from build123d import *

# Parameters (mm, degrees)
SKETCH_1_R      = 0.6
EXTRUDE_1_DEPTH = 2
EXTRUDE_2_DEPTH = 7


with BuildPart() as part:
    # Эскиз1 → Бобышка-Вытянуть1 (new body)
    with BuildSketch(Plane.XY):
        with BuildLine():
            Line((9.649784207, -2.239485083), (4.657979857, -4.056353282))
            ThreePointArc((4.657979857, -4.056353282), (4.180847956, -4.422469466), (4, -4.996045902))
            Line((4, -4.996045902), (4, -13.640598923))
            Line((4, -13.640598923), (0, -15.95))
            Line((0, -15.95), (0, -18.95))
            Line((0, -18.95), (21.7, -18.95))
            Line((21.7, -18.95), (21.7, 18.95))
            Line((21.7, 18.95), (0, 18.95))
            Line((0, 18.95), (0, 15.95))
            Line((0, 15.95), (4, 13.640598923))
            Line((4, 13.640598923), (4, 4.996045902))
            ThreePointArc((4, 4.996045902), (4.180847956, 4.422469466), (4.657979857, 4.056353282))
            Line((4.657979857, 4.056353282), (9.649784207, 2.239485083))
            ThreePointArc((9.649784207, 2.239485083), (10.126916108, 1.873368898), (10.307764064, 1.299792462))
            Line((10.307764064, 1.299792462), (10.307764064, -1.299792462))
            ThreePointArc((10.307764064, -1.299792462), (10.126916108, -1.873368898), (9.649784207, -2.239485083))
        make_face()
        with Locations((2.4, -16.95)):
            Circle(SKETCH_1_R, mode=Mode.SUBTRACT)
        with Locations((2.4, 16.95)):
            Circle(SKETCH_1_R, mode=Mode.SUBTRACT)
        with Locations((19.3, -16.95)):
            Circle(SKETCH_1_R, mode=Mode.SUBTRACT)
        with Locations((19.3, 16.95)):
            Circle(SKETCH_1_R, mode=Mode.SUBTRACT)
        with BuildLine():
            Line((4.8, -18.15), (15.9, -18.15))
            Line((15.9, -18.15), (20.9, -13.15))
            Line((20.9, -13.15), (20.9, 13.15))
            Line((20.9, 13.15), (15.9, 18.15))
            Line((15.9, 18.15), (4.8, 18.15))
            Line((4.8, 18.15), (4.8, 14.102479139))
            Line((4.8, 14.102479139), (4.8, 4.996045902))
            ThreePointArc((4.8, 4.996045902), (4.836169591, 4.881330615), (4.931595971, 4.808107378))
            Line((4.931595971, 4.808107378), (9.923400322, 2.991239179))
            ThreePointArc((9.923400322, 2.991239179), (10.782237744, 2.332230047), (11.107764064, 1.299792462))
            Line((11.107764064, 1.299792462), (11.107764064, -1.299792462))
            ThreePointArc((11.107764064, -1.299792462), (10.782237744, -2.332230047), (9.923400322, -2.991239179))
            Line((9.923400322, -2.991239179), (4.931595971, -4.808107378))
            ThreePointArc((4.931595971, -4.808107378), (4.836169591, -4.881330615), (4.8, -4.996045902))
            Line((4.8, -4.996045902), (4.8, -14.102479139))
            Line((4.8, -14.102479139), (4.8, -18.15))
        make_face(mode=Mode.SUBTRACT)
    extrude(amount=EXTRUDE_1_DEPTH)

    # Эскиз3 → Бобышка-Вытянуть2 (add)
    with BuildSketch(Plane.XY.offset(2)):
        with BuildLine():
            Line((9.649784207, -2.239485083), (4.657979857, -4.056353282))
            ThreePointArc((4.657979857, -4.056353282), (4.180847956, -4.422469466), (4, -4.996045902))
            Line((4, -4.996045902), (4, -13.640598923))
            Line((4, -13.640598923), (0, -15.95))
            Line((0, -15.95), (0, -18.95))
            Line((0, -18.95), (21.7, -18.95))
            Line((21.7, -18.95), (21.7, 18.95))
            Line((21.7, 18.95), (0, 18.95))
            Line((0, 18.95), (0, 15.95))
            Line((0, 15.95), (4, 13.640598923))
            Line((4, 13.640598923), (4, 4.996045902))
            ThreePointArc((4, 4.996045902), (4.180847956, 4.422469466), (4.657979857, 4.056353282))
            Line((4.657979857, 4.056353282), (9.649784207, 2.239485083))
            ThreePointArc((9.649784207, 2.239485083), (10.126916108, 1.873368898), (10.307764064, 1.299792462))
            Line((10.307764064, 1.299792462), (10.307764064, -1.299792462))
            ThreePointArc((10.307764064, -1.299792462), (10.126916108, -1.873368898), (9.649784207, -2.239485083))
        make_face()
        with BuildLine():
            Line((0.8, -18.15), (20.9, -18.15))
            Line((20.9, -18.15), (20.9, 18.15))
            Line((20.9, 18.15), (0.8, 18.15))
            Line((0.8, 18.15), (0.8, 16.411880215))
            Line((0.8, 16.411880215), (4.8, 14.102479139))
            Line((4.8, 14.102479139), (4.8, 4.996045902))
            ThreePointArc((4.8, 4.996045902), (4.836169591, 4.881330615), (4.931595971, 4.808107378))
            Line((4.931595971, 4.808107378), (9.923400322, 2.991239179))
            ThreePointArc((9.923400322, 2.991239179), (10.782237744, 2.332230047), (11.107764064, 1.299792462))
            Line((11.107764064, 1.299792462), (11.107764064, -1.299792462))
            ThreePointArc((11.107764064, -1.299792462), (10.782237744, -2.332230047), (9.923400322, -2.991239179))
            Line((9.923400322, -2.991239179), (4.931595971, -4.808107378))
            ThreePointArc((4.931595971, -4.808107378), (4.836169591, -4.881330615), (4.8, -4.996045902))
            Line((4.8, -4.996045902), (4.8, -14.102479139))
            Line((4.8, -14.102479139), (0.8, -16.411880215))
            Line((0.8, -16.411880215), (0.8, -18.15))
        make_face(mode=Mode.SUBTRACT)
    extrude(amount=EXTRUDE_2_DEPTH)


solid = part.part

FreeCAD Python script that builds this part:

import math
import FreeCAD as App
import Part
import Sketcher
from FreeCAD import Vector
Q = App.Units.Quantity

doc = App.newDocument("Part")
body = doc.addObject("PartDesign::Body", "Body")

# Sketch on XY plane
sketch1 = body.newObject("Sketcher::SketchObject", "Sketch")
sketch1.AttachmentSupport = (doc.getObject("XY_Plane"), [""])
sketch1.MapMode = "FlatFace"
sketch1.addGeometry([
    Part.LineSegment(Vector(9.65, -2.24, 0), Vector(4.66, -4.06, 0)),  # 0
    Part.ArcOfCircle(Part.Circle(Vector(5, -5, 0), Vector(0, 0, 1), 1), math.radians(110), math.radians(180)),  # 1
    Part.LineSegment(Vector(4, -5, 0), Vector(4, -13.64, 0)),  # 2
    Part.LineSegment(Vector(4, -13.64, 0), Vector(0, -15.95, 0)),  # 3
    Part.LineSegment(Vector(0, -15.95, 0), Vector(0, -18.95, 0)),  # 4
    Part.LineSegment(Vector(0, -18.95, 0), Vector(21.7, -18.95, 0)),  # 5
    Part.LineSegment(Vector(21.7, -18.95, 0), Vector(21.7, 18.95, 0)),  # 6
    Part.LineSegment(Vector(21.7, 18.95, 0), Vector(0, 18.95, 0)),  # 7
    Part.LineSegment(Vector(0, 18.95, 0), Vector(0, 15.95, 0)),  # 8
    Part.LineSegment(Vector(0, 15.95, 0), Vector(4, 13.64, 0)),  # 9
    Part.LineSegment(Vector(4, 13.64, 0), Vector(4, 5, 0)),  # 10
    Part.ArcOfCircle(Part.Circle(Vector(5, 5, 0), Vector(0, 0, 1), 1), math.radians(-180), math.radians(-110)),  # 11
    Part.LineSegment(Vector(4.66, 4.06, 0), Vector(9.65, 2.24, 0)),  # 12
    Part.ArcOfCircle(Part.Circle(Vector(9.31, 1.3, 0), Vector(0, 0, 1), 1), math.radians(0), math.radians(70)),  # 13
    Part.LineSegment(Vector(10.31, 1.3, 0), Vector(10.31, -1.3, 0)),  # 14
    Part.ArcOfCircle(Part.Circle(Vector(9.31, -1.3, 0), Vector(0, 0, 1), 1), math.radians(-70), math.radians(0)),  # 15
    Part.Circle(Vector(2.4, -16.95, 0), Vector(0, 0, 1), 0.6),  # 16
    Part.Circle(Vector(19.3, -16.95, 0), Vector(0, 0, 1), 0.6),  # 17
    Part.Circle(Vector(2.4, 16.95, 0), Vector(0, 0, 1), 0.6),  # 18
    Part.LineSegment(Vector(15.9, -18.15, 0), Vector(4.8, -18.15, 0)),  # 19
    Part.LineSegment(Vector(4.8, -18.15, 0), Vector(4.8, -5, 0)),  # 20
    Part.ArcOfCircle(Part.Circle(Vector(5, -5, 0), Vector(0, 0, 1), 0.2), math.radians(110), math.radians(180)),  # 21
    Part.LineSegment(Vector(4.93, -4.81, 0), Vector(9.92, -2.99, 0)),  # 22
    Part.ArcOfCircle(Part.Circle(Vector(9.31, -1.3, 0), Vector(0, 0, 1), 1.8), math.radians(-70), math.radians(0)),  # 23
    Part.LineSegment(Vector(11.11, -1.3, 0), Vector(11.11, 1.3, 0)),  # 24
    Part.ArcOfCircle(Part.Circle(Vector(9.31, 1.3, 0), Vector(0, 0, 1), 1.8), math.radians(0), math.radians(70)),  # 25
    Part.LineSegment(Vector(9.92, 2.99, 0), Vector(4.93, 4.81, 0)),  # 26
    Part.ArcOfCircle(Part.Circle(Vector(5, 5, 0), Vector(0, 0, 1), 0.2), math.radians(180), math.radians(250)),  # 27
    Part.LineSegment(Vector(4.8, 5, 0), Vector(4.8, 18.15, 0)),  # 28
    Part.LineSegment(Vector(4.8, 18.15, 0), Vector(15.9, 18.15, 0)),  # 29
    Part.LineSegment(Vector(15.9, 18.15, 0), Vector(20.9, 13.15, 0)),  # 30
    Part.LineSegment(Vector(20.9, 13.15, 0), Vector(20.9, -13.15, 0)),  # 31
    Part.LineSegment(Vector(20.9, -13.15, 0), Vector(15.9, -18.15, 0)),  # 32
    Part.Circle(Vector(19.3, 16.95, 0), Vector(0, 0, 1), 0.6),  # 33
], False)
sketch1.addConstraint([
    Sketcher.Constraint("Tangent", 0, 2, 1, 1),
    Sketcher.Constraint("Tangent", 1, 2, 2, 1),
    Sketcher.Constraint("Coincident", 2, 2, 3, 1),
    Sketcher.Constraint("Coincident", 3, 2, 4, 1),
    Sketcher.Constraint("Coincident", 4, 2, 5, 1),
    Sketcher.Constraint("Coincident", 5, 2, 6, 1),
    Sketcher.Constraint("Coincident", 6, 2, 7, 1),
    Sketcher.Constraint("Coincident", 7, 2, 8, 1),
    Sketcher.Constraint("Coincident", 8, 2, 9, 1),
    Sketcher.Constraint("Coincident", 9, 2, 10, 1),
    Sketcher.Constraint("Tangent", 10, 2, 11, 1),
    Sketcher.Constraint("Tangent", 11, 2, 12, 1),
    Sketcher.Constraint("Tangent", 12, 2, 13, 2),
    Sketcher.Constraint("Tangent", 13, 1, 14, 1),
    Sketcher.Constraint("Tangent", 14, 2, 15, 2),
    Sketcher.Constraint("Tangent", 15, 1, 0, 1),
    Sketcher.Constraint("Coincident", 19, 2, 20, 1),
    Sketcher.Constraint("Tangent", 20, 2, 21, 2),
    Sketcher.Constraint("Tangent", 21, 1, 22, 1),
    Sketcher.Constraint("Tangent", 22, 2, 23, 1),
    Sketcher.Constraint("Tangent", 23, 2, 24, 1),
    Sketcher.Constraint("Tangent", 24, 2, 25, 1),
    Sketcher.Constraint("Tangent", 25, 2, 26, 1),
    Sketcher.Constraint("Tangent", 26, 2, 27, 2),
    Sketcher.Constraint("Tangent", 27, 1, 28, 1),
    Sketcher.Constraint("Coincident", 28, 2, 29, 1),
    Sketcher.Constraint("Coincident", 29, 2, 30, 1),
    Sketcher.Constraint("Coincident", 30, 2, 31, 1),
    Sketcher.Constraint("Coincident", 31, 2, 32, 1),
    Sketcher.Constraint("Coincident", 32, 2, 19, 1),
    Sketcher.Constraint("Vertical", 2),
    Sketcher.Constraint("Vertical", 4),
    Sketcher.Constraint("Horizontal", 5),
    Sketcher.Constraint("Vertical", 6),
    Sketcher.Constraint("Horizontal", 7),
    Sketcher.Constraint("Vertical", 8),
    Sketcher.Constraint("Vertical", 10),
    Sketcher.Constraint("Vertical", 14),
    Sketcher.Constraint("Horizontal", 19),
    Sketcher.Constraint("Vertical", 20),
    Sketcher.Constraint("Vertical", 24),
    Sketcher.Constraint("Vertical", 28),
    Sketcher.Constraint("Horizontal", 29),
    Sketcher.Constraint("Vertical", 31),
    Sketcher.Constraint("Coincident", 21, 3, 1, 3),
    Sketcher.Constraint("Coincident", 23, 3, 15, 3),
    Sketcher.Constraint("Coincident", 25, 3, 13, 3),
    Sketcher.Constraint("Coincident", 27, 3, 11, 3),
    Sketcher.Constraint("Equal", 1, 11),
    Sketcher.Constraint("Equal", 11, 13),
    Sketcher.Constraint("Equal", 13, 15),
    Sketcher.Constraint("Equal", 16, 17),
    Sketcher.Constraint("Equal", 17, 18),
    Sketcher.Constraint("Equal", 21, 27),
    Sketcher.Constraint("Equal", 18, 33),
    Sketcher.Constraint("Symmetric", 4, 2, 7, 2, -1, 1),
    Sketcher.Constraint("Symmetric", 1, 3, 11, 3, -1),
    Sketcher.Constraint("Symmetric", 16, 3, 18, 3, -1),
    Sketcher.Constraint("Symmetric", 17, 3, 33, 3, -1),
    Sketcher.Constraint("Symmetric", 3, 2, 8, 2, -1),
    Sketcher.Constraint("Symmetric", 29, 2, 32, 2, -1),
    Sketcher.Constraint("Parallel", 0, 22),
    Sketcher.Constraint("Perpendicular", 30, 32),
    Sketcher.Constraint("Horizontal", 16, 3, 17, 3),
    Sketcher.Constraint("Vertical", 0, 2, 11, 2),
    Sketcher.Constraint("Equal", 2, 10),
    Sketcher.Constraint("Equal", 30, 32),
    Sketcher.Constraint("Radius", 1, Q("1 mm")),
    Sketcher.Constraint("Diameter", 16, Q("1.2 mm")),
    Sketcher.Constraint("Radius", 21, Q("0.2 mm")),
    Sketcher.Constraint("DistanceY", 4, 2, 4, 1, Q("3 mm")),
    Sketcher.Constraint("Angle", 0, Q("-160 deg")),
    Sketcher.Constraint("Angle", 3, Q("-150 deg")),
    Sketcher.Constraint("DistanceX", 5, 1, 5, 2, Q("21.7 mm")),
    Sketcher.Constraint("DistanceX", 19, 2, 19, 1, Q("11.1 mm")),
    Sketcher.Constraint("DistanceY", 6, 1, 6, 2, Q("37.9 mm")),
    Sketcher.Constraint("DistanceY", 31, 2, 31, 1, Q("26.3 mm")),
    Sketcher.Constraint("DistanceX", -1, 1, 1, 3, Q("5 mm")),
    Sketcher.Constraint("DistanceY", 16, 3, 3, 2, Q("1 mm")),
    Sketcher.Constraint("DistanceX", 29, 2, 30, 2, Q("5 mm")),
    Sketcher.Constraint("DistanceX", -1, 1, 16, 3, Q("2.4 mm")),
    Sketcher.Constraint("DistanceX", -1, 1, 17, 3, Q("19.3 mm")),
    Sketcher.Constraint("DistanceX", -1, 1, 22, 2, Q("9.9234 mm")),
    Sketcher.Constraint("DistanceY", 2, 2, 2, 1, Q("8.644553 mm")),
])
pad1 = body.newObject("PartDesign::Pad", "Pad")
pad1.Profile = sketch1
pad1.Length = 2

# Sketch on XY plane
sketch2 = body.newObject("Sketcher::SketchObject", "Sketch001")
sketch2.AttachmentSupport = (doc.getObject("XY_Plane"), [""])
sketch2.MapMode = "FlatFace"
sketch2.AttachmentOffset = App.Placement(Vector(0, 0, 2), App.Rotation())
sketch2.addGeometry([
    Part.LineSegment(Vector(9.65, -2.24, 0), Vector(4.66, -4.06, 0)),  # 0
    Part.ArcOfCircle(Part.Circle(Vector(5, -5, 0), Vector(0, 0, 1), 1), math.radians(110), math.radians(180)),  # 1
    Part.LineSegment(Vector(4, -5, 0), Vector(4, -13.64, 0)),  # 2
    Part.LineSegment(Vector(4, -13.64, 0), Vector(0, -15.95, 0)),  # 3
    Part.LineSegment(Vector(0, -15.95, 0), Vector(0, -18.95, 0)),  # 4
    Part.LineSegment(Vector(0, -18.95, 0), Vector(21.7, -18.95, 0)),  # 5
    Part.LineSegment(Vector(21.7, -18.95, 0), Vector(21.7, 18.95, 0)),  # 6
    Part.LineSegment(Vector(21.7, 18.95, 0), Vector(0, 18.95, 0)),  # 7
    Part.LineSegment(Vector(0, 18.95, 0), Vector(0, 15.95, 0)),  # 8
    Part.LineSegment(Vector(0, 15.95, 0), Vector(4, 13.64, 0)),  # 9
    Part.LineSegment(Vector(4, 13.64, 0), Vector(4, 5, 0)),  # 10
    Part.ArcOfCircle(Part.Circle(Vector(5, 5, 0), Vector(0, 0, 1), 1), math.radians(-180), math.radians(-110)),  # 11
    Part.LineSegment(Vector(4.66, 4.06, 0), Vector(9.65, 2.24, 0)),  # 12
    Part.ArcOfCircle(Part.Circle(Vector(9.31, 1.3, 0), Vector(0, 0, 1), 1), math.radians(0), math.radians(70)),  # 13
    Part.LineSegment(Vector(10.31, 1.3, 0), Vector(10.31, -1.3, 0)),  # 14
    Part.ArcOfCircle(Part.Circle(Vector(9.31, -1.3, 0), Vector(0, 0, 1), 1), math.radians(-70), math.radians(0)),  # 15
    Part.LineSegment(Vector(20.9, -18.15, 0), Vector(0.8, -18.15, 0)),  # 16
    Part.LineSegment(Vector(0.8, -18.15, 0), Vector(0.8, -16.41, 0)),  # 17
    Part.LineSegment(Vector(0.8, -16.41, 0), Vector(4.8, -14.1, 0)),  # 18
    Part.LineSegment(Vector(4.8, -14.1, 0), Vector(4.8, -5, 0)),  # 19
    Part.ArcOfCircle(Part.Circle(Vector(5, -5, 0), Vector(0, 0, 1), 0.2), math.radians(110), math.radians(180)),  # 20
    Part.LineSegment(Vector(4.93, -4.81, 0), Vector(9.92, -2.99, 0)),  # 21
    Part.ArcOfCircle(Part.Circle(Vector(9.31, -1.3, 0), Vector(0, 0, 1), 1.8), math.radians(-70), math.radians(0)),  # 22
    Part.LineSegment(Vector(11.11, -1.3, 0), Vector(11.11, 1.3, 0)),  # 23
    Part.ArcOfCircle(Part.Circle(Vector(9.31, 1.3, 0), Vector(0, 0, 1), 1.8), math.radians(0), math.radians(70)),  # 24
    Part.LineSegment(Vector(9.92, 2.99, 0), Vector(4.93, 4.81, 0)),  # 25
    Part.ArcOfCircle(Part.Circle(Vector(5, 5, 0), Vector(0, 0, 1), 0.2), math.radians(180), math.radians(250)),  # 26
    Part.LineSegment(Vector(4.8, 5, 0), Vector(4.8, 14.1, 0)),  # 27
    Part.LineSegment(Vector(4.8, 14.1, 0), Vector(0.8, 16.41, 0)),  # 28
    Part.LineSegment(Vector(0.8, 16.41, 0), Vector(0.8, 18.15, 0)),  # 29
    Part.LineSegment(Vector(0.8, 18.15, 0), Vector(20.9, 18.15, 0)),  # 30
    Part.LineSegment(Vector(20.9, 18.15, 0), Vector(20.9, -18.15, 0)),  # 31
], False)
sketch2.addConstraint([
    Sketcher.Constraint("Tangent", 0, 2, 1, 1),
    Sketcher.Constraint("Tangent", 1, 2, 2, 1),
    Sketcher.Constraint("Coincident", 2, 2, 3, 1),
    Sketcher.Constraint("Coincident", 3, 2, 4, 1),
    Sketcher.Constraint("Coincident", 4, 2, 5, 1),
    Sketcher.Constraint("Coincident", 5, 2, 6, 1),
    Sketcher.Constraint("Coincident", 6, 2, 7, 1),
    Sketcher.Constraint("Coincident", 7, 2, 8, 1),
    Sketcher.Constraint("Coincident", 8, 2, 9, 1),
    Sketcher.Constraint("Coincident", 9, 2, 10, 1),
    Sketcher.Constraint("Tangent", 10, 2, 11, 1),
    Sketcher.Constraint("Tangent", 11, 2, 12, 1),
    Sketcher.Constraint("Tangent", 12, 2, 13, 2),
    Sketcher.Constraint("Tangent", 13, 1, 14, 1),
    Sketcher.Constraint("Tangent", 14, 2, 15, 2),
    Sketcher.Constraint("Tangent", 15, 1, 0, 1),
    Sketcher.Constraint("Coincident", 16, 2, 17, 1),
    Sketcher.Constraint("Coincident", 17, 2, 18, 1),
    Sketcher.Constraint("Coincident", 18, 2, 19, 1),
    Sketcher.Constraint("Tangent", 19, 2, 20, 2),
    Sketcher.Constraint("Tangent", 20, 1, 21, 1),
    Sketcher.Constraint("Tangent", 21, 2, 22, 1),
    Sketcher.Constraint("Tangent", 22, 2, 23, 1),
    Sketcher.Constraint("Tangent", 23, 2, 24, 1),
    Sketcher.Constraint("Tangent", 24, 2, 25, 1),
    Sketcher.Constraint("Tangent", 25, 2, 26, 2),
    Sketcher.Constraint("Tangent", 26, 1, 27, 1),
    Sketcher.Constraint("Coincident", 27, 2, 28, 1),
    Sketcher.Constraint("Coincident", 28, 2, 29, 1),
    Sketcher.Constraint("Coincident", 29, 2, 30, 1),
    Sketcher.Constraint("Coincident", 30, 2, 31, 1),
    Sketcher.Constraint("Coincident", 31, 2, 16, 1),
    Sketcher.Constraint("Vertical", 2),
    Sketcher.Constraint("Vertical", 4),
    Sketcher.Constraint("Horizontal", 5),
    Sketcher.Constraint("Vertical", 6),
    Sketcher.Constraint("Horizontal", 7),
    Sketcher.Constraint("Vertical", 8),
    Sketcher.Constraint("Vertical", 10),
    Sketcher.Constraint("Vertical", 14),
    Sketcher.Constraint("Horizontal", 16),
    Sketcher.Constraint("Vertical", 17),
    Sketcher.Constraint("Vertical", 19),
    Sketcher.Constraint("Vertical", 23),
    Sketcher.Constraint("Vertical", 27),
    Sketcher.Constraint("Vertical", 29),
    Sketcher.Constraint("Horizontal", 30),
    Sketcher.Constraint("Vertical", 31),
    Sketcher.Constraint("Coincident", 20, 3, 1, 3),
    Sketcher.Constraint("Coincident", 22, 3, 15, 3),
    Sketcher.Constraint("Coincident", 24, 3, 13, 3),
    Sketcher.Constraint("Coincident", 26, 3, 11, 3),
    Sketcher.Constraint("Equal", 1, 11),
    Sketcher.Constraint("Equal", 11, 13),
    Sketcher.Constraint("Equal", 13, 15),
    Sketcher.Constraint("Equal", 20, 26),
    Sketcher.Constraint("Symmetric", 4, 2, 7, 2, -1, 1),
    Sketcher.Constraint("Symmetric", 1, 3, 11, 3, -1),
    Sketcher.Constraint("Symmetric", 3, 2, 8, 2, -1),
    Sketcher.Constraint("Symmetric", 17, 2, 28, 2, -1),
    Sketcher.Constraint("Parallel", 3, 18),
    Sketcher.Constraint("Parallel", 0, 21),
    Sketcher.Constraint("Parallel", 9, 28),
    Sketcher.Constraint("Vertical", 0, 2, 11, 2),
    Sketcher.Constraint("Equal", 2, 10),
    Sketcher.Constraint("Equal", 17, 29),
    Sketcher.Constraint("Equal", 9, 18),
    Sketcher.Constraint("Radius", 1, Q("1 mm")),
    Sketcher.Constraint("Radius", 20, Q("0.2 mm")),
    Sketcher.Constraint("DistanceY", 4, 2, 4, 1, Q("3 mm")),
    Sketcher.Constraint("Angle", 0, Q("-160 deg")),
    Sketcher.Constraint("Angle", 3, Q("-150 deg")),
    Sketcher.Constraint("DistanceX", 5, 1, 5, 2, Q("21.7 mm")),
    Sketcher.Constraint("DistanceX", 16, 2, 16, 1, Q("20.1 mm")),
    Sketcher.Constraint("DistanceY", 6, 1, 6, 2, Q("37.9 mm")),
    Sketcher.Constraint("DistanceY", 31, 2, 31, 1, Q("36.3 mm")),
    Sketcher.Constraint("DistanceX", -1, 1, 1, 3, Q("5 mm")),
    Sketcher.Constraint("DistanceY", 17, 1, 17, 2, Q("1.73812 mm")),
    Sketcher.Constraint("DistanceX", -1, 1, 21, 2, Q("9.9234 mm")),
    Sketcher.Constraint("DistanceY", 2, 2, 2, 1, Q("8.644553 mm")),
])
pad2 = body.newObject("PartDesign::Pad", "Pad001")
pad2.Profile = sketch2
pad2.Length = 7

doc.recompute()
